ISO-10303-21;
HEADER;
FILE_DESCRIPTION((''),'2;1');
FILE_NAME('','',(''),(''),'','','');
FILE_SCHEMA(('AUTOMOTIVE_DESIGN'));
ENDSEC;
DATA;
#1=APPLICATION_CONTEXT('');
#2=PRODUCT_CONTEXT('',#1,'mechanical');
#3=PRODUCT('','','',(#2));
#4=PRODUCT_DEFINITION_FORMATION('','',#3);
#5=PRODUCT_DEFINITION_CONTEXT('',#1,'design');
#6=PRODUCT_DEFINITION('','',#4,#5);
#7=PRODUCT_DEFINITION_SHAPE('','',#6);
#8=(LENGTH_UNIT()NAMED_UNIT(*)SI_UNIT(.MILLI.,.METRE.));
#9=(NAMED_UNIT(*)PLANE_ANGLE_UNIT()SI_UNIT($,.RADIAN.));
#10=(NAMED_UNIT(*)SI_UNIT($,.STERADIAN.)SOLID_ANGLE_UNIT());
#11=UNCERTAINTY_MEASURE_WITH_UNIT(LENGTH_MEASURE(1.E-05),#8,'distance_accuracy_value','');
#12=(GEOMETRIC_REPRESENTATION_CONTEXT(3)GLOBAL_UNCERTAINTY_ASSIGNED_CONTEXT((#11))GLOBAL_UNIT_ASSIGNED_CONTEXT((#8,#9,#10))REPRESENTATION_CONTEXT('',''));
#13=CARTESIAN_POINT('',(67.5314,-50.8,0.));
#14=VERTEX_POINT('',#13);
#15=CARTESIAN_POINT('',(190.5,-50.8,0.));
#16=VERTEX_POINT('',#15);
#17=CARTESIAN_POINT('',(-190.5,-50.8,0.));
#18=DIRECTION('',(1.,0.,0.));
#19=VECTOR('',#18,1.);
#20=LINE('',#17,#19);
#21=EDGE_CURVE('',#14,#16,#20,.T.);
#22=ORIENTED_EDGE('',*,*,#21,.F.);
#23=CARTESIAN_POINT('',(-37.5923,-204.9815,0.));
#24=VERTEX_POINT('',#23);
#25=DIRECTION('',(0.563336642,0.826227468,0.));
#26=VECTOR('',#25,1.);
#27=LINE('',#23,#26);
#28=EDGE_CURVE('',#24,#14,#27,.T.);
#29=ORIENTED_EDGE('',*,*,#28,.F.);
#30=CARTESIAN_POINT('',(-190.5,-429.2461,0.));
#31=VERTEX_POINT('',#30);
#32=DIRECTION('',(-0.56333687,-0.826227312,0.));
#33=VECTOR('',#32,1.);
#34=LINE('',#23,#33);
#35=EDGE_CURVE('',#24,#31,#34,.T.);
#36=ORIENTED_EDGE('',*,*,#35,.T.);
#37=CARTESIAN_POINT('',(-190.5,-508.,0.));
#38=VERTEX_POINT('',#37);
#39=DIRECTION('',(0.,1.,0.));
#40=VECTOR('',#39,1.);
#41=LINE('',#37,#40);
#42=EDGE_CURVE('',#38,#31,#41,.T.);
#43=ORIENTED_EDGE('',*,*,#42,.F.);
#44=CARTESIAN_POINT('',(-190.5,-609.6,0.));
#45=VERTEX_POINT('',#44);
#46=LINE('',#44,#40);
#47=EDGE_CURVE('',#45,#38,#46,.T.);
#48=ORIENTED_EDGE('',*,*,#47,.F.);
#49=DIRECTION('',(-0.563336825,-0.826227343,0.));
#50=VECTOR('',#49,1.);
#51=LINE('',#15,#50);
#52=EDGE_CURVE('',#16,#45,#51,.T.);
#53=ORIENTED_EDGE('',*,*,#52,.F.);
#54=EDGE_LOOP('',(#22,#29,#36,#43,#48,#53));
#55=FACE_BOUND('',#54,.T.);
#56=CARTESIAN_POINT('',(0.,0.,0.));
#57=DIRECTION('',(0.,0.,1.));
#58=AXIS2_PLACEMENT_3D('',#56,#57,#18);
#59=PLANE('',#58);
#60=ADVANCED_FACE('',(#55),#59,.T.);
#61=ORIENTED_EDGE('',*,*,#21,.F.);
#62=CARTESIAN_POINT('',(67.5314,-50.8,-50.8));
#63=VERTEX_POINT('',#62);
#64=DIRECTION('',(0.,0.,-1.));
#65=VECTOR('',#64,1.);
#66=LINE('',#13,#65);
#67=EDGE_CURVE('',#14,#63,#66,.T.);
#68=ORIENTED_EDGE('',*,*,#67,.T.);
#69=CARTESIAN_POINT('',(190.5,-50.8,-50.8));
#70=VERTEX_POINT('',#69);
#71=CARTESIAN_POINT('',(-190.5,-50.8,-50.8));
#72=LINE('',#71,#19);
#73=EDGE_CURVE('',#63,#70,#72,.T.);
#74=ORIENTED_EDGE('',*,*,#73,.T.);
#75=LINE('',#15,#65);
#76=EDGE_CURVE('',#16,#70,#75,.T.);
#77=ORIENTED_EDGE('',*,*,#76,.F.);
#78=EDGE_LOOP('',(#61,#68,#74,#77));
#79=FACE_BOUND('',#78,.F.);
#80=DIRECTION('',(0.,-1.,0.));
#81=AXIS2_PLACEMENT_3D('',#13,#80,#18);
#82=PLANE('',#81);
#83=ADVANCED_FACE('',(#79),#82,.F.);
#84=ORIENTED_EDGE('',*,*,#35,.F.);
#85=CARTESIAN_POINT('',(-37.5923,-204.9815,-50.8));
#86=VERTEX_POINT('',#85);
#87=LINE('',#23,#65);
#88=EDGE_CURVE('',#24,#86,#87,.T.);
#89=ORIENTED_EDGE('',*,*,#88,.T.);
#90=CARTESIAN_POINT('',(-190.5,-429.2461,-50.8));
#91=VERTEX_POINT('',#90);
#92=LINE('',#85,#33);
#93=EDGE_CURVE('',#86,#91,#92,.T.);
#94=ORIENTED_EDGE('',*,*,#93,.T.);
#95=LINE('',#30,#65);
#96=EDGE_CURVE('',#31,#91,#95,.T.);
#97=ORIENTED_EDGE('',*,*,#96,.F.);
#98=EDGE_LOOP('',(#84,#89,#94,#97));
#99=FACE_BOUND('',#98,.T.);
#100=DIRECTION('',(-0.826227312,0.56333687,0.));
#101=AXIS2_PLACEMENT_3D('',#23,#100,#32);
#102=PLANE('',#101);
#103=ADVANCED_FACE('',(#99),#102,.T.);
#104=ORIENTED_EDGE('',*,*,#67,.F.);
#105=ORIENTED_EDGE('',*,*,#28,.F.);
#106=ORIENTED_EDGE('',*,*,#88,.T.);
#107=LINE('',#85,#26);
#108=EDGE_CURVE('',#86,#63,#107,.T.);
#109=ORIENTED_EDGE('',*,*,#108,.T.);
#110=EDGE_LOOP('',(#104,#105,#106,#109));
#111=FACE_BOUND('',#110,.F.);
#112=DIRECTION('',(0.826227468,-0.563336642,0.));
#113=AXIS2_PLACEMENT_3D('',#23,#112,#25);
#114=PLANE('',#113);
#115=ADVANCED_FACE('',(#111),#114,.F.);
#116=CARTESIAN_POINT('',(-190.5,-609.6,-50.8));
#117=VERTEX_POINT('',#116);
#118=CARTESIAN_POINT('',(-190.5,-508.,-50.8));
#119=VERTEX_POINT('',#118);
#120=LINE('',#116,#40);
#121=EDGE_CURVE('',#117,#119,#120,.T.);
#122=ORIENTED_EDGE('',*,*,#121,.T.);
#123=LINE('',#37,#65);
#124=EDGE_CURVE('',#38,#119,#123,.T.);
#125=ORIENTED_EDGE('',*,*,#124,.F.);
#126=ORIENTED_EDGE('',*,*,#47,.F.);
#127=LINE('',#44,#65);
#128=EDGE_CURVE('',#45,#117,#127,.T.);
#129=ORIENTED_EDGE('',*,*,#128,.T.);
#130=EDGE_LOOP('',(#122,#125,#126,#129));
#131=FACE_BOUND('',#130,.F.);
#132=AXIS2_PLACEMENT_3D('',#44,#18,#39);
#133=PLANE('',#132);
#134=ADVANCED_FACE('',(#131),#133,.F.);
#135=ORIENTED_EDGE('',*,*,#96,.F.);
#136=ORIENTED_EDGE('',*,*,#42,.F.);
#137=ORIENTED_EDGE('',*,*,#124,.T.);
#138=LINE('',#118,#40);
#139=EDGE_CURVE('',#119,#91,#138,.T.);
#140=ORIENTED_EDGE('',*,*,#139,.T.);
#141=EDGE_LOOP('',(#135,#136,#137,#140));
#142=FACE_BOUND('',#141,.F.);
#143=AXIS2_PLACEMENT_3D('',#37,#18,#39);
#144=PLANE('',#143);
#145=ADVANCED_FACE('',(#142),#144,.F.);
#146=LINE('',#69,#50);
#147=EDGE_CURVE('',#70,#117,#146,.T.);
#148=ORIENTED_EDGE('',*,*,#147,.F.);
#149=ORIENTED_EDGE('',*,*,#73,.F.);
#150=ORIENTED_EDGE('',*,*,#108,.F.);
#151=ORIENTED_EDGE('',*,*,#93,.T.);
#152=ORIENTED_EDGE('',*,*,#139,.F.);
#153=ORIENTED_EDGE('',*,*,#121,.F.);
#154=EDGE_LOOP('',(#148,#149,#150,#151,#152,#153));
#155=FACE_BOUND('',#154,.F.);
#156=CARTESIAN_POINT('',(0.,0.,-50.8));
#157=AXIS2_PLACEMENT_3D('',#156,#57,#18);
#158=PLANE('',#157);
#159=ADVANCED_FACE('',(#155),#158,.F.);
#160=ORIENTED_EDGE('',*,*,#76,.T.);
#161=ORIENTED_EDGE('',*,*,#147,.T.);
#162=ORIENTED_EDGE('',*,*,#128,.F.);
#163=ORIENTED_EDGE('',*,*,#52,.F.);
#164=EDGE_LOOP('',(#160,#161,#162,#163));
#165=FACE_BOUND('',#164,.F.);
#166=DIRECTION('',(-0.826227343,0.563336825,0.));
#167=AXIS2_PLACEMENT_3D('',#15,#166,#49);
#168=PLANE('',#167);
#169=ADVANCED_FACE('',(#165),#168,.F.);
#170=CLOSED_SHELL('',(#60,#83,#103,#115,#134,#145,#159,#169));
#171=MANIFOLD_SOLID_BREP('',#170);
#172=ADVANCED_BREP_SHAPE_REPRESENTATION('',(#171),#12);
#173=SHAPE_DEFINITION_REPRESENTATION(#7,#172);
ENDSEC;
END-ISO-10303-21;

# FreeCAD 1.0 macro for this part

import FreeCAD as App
import Part
import Sketcher

V = App.Vector
Q = App.Units.Quantity


def add_polygon(sketch, points):
    """Adds a closed chain of lines whose ends are joined by coincident constraints."""
    first, n = sketch.GeometryCount, len(points)
    for a, b in zip(points, points[1:] + points[:1]):
        sketch.addGeometry(Part.LineSegment(App.Vector(*a, 0), App.Vector(*b, 0)), False)
    for i in range(n):
        sketch.addConstraint(Sketcher.Constraint("Coincident", first + i, 2, first + (i + 1) % n, 1))

doc = App.newDocument("Part")
body = doc.addObject("PartDesign::Body", "Body")

# Sketch on XY plane
sketch1 = doc.addObject("Sketcher::SketchObject", "Sketch")
body.addObject(sketch1)
sketch1.AttachmentSupport = (doc.XY_Plane, [""])
sketch1.MapMode = "FlatFace"
add_polygon(sketch1, [(190, -51), (68, -51), (-38, -205), (-190, -429), (-190, -610)])  # lines 0-4
sketch1.addConstraint([
    Sketcher.Constraint("Horizontal", 0),
    Sketcher.Constraint("Vertical", 3),
    Sketcher.Constraint("Parallel", 1, 2),
    Sketcher.Constraint("Parallel", 2, 4),
    Sketcher.Constraint("DistanceY", 0, 2, -1, 1, Q("2 in")),
    Sketcher.Constraint("DistanceY", 3, 2, -1, 1, Q("24 in")),
    Sketcher.Constraint("DistanceX", 2, 2, 4, 2, Q("15 in")),
    Sketcher.Constraint("DistanceX", 2, 2, -1, 1, Q("7.5 in")),
    Sketcher.Constraint("DistanceX", 1, 2, -1, 1, Q("1.48 in")),
    Sketcher.Constraint("Distance", 1, Q("7.3468 in")),
])
pad1 = doc.addObject("PartDesign::Pad", "Pad")
body.addObject(pad1)
pad1.Profile = sketch1
pad1.Length = Q("2 in")
pad1.Reversed = True

doc.recompute()
